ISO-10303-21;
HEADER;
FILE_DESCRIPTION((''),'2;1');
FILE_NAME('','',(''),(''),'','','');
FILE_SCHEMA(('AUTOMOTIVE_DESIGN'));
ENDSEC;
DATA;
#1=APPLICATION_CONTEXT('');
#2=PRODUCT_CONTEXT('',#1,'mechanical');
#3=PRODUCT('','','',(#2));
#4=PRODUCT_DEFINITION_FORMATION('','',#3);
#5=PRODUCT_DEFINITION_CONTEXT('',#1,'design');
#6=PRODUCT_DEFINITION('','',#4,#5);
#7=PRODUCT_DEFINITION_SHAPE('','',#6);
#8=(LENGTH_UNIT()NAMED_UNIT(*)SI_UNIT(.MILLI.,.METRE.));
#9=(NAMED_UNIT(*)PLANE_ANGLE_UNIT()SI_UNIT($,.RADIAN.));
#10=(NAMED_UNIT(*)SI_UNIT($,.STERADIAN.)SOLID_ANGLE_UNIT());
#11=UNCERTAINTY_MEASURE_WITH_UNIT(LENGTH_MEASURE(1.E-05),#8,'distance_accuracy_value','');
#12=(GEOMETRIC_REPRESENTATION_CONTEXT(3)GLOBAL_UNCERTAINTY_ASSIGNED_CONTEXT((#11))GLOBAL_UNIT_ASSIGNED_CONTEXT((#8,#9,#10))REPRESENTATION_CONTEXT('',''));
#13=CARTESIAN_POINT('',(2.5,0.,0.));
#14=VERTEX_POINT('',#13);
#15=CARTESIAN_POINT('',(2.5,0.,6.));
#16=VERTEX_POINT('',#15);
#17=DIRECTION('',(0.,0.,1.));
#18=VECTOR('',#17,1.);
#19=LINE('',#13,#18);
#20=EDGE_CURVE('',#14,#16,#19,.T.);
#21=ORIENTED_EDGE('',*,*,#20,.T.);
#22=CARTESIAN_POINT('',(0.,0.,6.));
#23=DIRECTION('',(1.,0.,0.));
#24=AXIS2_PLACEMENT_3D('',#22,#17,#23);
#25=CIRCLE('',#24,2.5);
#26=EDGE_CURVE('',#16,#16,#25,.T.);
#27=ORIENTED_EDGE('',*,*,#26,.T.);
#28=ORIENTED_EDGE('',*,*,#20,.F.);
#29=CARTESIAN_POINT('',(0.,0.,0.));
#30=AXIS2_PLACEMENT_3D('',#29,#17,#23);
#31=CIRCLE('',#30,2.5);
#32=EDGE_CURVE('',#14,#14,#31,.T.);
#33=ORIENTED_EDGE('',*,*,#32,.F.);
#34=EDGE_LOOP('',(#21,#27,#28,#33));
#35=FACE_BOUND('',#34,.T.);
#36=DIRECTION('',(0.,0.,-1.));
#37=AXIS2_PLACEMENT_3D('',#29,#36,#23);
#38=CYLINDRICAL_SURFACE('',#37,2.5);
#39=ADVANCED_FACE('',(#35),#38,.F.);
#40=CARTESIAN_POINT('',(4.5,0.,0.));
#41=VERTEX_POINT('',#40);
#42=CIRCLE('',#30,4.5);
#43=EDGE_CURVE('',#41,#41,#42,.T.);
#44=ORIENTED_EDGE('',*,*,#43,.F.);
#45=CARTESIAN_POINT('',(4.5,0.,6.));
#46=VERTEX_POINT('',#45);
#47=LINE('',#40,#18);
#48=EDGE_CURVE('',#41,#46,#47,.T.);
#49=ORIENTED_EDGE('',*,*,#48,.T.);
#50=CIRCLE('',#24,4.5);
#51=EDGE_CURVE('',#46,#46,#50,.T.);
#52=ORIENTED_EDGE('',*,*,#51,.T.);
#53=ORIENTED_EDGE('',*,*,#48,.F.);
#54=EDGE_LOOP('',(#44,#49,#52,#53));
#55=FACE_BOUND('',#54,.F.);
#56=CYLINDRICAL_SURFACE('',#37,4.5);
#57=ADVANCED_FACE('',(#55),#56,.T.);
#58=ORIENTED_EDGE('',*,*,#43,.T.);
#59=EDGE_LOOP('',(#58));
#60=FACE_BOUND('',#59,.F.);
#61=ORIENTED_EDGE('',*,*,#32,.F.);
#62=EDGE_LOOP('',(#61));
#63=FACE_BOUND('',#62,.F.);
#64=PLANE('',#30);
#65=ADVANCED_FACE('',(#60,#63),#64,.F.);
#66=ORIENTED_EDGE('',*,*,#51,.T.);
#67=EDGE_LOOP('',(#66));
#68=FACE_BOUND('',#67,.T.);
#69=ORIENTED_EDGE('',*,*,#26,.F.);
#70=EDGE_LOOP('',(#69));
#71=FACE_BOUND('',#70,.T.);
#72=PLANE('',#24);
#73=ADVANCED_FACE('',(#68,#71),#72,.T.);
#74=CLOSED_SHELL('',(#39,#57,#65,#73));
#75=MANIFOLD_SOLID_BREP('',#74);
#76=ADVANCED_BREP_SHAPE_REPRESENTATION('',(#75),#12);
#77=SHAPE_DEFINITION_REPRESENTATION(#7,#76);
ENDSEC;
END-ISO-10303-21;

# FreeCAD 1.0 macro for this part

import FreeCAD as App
import Part
import Sketcher

V = App.Vector

doc = App.newDocument("Part")
body = doc.addObject("PartDesign::Body", "Body")

# Sketch on XY plane
sketch1 = doc.addObject("Sketcher::SketchObject", "Sketch")
body.addObject(sketch1)
sketch1.AttachmentSupport = (doc.XY_Plane, [""])
sketch1.MapMode = "FlatFace"
sketch1.addGeometry([
    Part.Circle(V(0, 0, 0), V(0, 0, 1), 4.5),
    Part.Circle(V(0, 0, 0), V(0, 0, 1), 2.5),
], False)
sketch1.addConstraint([
    Sketcher.Constraint("Coincident", 0, 3, -1, 1),
    Sketcher.Constraint("Coincident", 1, 3, -1, 1),
    Sketcher.Constraint("Diameter", 0, 9.0),
    Sketcher.Constraint("Diameter", 1, 5.0),
])
pad1 = doc.addObject("PartDesign::Pad", "Pad")
body.addObject(pad1)
pad1.Profile = sketch1
pad1.Length = 6

doc.recompute()
